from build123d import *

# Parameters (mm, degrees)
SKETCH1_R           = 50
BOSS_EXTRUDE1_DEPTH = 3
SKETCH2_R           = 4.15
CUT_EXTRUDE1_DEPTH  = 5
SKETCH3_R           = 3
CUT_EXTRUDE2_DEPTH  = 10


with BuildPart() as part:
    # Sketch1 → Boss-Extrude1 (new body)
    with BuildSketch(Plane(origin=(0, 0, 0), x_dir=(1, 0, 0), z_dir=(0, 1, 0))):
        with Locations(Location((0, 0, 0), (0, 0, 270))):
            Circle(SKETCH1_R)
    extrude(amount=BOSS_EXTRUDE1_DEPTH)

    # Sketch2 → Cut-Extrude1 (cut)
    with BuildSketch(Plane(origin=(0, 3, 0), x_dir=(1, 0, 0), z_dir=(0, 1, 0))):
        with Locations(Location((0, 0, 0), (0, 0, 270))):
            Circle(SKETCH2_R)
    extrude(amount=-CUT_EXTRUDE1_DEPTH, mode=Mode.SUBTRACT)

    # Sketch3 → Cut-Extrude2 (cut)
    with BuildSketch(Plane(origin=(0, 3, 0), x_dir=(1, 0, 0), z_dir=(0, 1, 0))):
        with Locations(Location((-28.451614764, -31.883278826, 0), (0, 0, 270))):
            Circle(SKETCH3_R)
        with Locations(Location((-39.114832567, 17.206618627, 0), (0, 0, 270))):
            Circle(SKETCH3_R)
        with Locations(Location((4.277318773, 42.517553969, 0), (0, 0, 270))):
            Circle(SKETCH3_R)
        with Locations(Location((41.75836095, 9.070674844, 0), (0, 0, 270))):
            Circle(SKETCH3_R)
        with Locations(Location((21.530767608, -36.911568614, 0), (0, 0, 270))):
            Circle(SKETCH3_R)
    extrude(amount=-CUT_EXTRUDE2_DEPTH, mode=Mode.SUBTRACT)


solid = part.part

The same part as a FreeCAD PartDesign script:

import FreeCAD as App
import Part
import Sketcher
from FreeCAD import Vector
Q = App.Units.Quantity

doc = App.newDocument("Part")
body = doc.addObject("PartDesign::Body", "Body")

# Sketch on XZ plane
sketch1 = doc.addObject("Sketcher::SketchObject", "Sketch")
body.addObject(sketch1)
sketch1.AttachmentSupport = (doc.XZ_Plane, [""])
sketch1.MapMode = "FlatFace"
sketch1.addGeometry(Part.Circle(Vector(0, 0, 0), Vector(0, 0, 1), 50), False)
sketch1.addConstraint([
    Sketcher.Constraint("Coincident", 0, 3, -1, 1),
    Sketcher.Constraint("Diameter", 0, Q("100 mm")),
])
pad1 = doc.addObject("PartDesign::Pad", "Pad")
body.addObject(pad1)
pad1.Profile = sketch1
pad1.Length = 3
pad1.Reversed = True

# Sketch on XZ plane
sketch2 = doc.addObject("Sketcher::SketchObject", "Sketch001")
body.addObject(sketch2)
sketch2.AttachmentSupport = (doc.XZ_Plane, [""])
sketch2.MapMode = "FlatFace"
sketch2.AttachmentOffset = App.Placement(Vector(0, 0, -3), App.Rotation())
sketch2.addGeometry(Part.Circle(Vector(0, 0, 0), Vector(0, 0, 1), 4.2), False)
sketch2.addConstraint([
    Sketcher.Constraint("Coincident", 0, 3, -1, 1),
    Sketcher.Constraint("Diameter", 0, Q("8.3 mm")),
])
pocket1 = doc.addObject("PartDesign::Pocket", "Pocket")
body.addObject(pocket1)
pocket1.Profile = sketch2
pocket1.Length = 5
pocket1.Reversed = True

# Sketch on XZ plane
sketch3 = doc.addObject("Sketcher::SketchObject", "Sketch002")
body.addObject(sketch3)
sketch3.AttachmentSupport = (doc.XZ_Plane, [""])
sketch3.MapMode = "FlatFace"
sketch3.AttachmentOffset = App.Placement(Vector(0, 0, -3), App.Rotation())
sketch3.addGeometry([
    Part.Circle(Vector(-28.5, 31.9, 0), Vector(0, 0, 1), 3),  # 0
    Part.Circle(Vector(-39.1, -17.2, 0), Vector(0, 0, 1), 3),  # 1
    Part.Circle(Vector(4.3, -42.5, 0), Vector(0, 0, 1), 3),  # 2
    Part.Circle(Vector(41.8, -9.1, 0), Vector(0, 0, 1), 3),  # 3
    Part.Circle(Vector(21.5, 36.9, 0), Vector(0, 0, 1), 3),  # 4
], False)
sketch3.addConstraint([
    Sketcher.Constraint("Equal", 0, 1),
    Sketcher.Constraint("Equal", 1, 2),
    Sketcher.Constraint("Equal", 2, 3),
    Sketcher.Constraint("Equal", 3, 4),
    Sketcher.Constraint("Diameter", 0, Q("6 mm")),
    Sketcher.Constraint("DistanceX", 1, 3, 4, 3, Q("60.6456 mm")),
    Sketcher.Constraint("DistanceY", -1, 1, 0, 3, Q("31.883279 mm")),
    Sketcher.Constraint("DistanceY", 1, 3, -1, 1, Q("17.206619 mm")),
    Sketcher.Constraint("DistanceX", -1, 1, 2, 3, Q("4.277319 mm")),
    Sketcher.Constraint("DistanceX", -1, 1, 3, 3, Q("41.758361 mm")),
    Sketcher.Constraint("DistanceY", -1, 1, 4, 3, Q("36.911569 mm")),
    Sketcher.Constraint("DistanceX", 1, 3, 2, 3, Q("43.392151 mm")),
    Sketcher.Constraint("DistanceY", 2, 3, 3, 3, Q("33.446879 mm")),
    Sketcher.Constraint("DistanceX", 0, 3, -1, 1, Q("28.451615 mm")),
    Sketcher.Constraint("DistanceY", 2, 3, -1, 1, Q("42.517554 mm")),
])
pocket2 = doc.addObject("PartDesign::Pocket", "Pocket001")
body.addObject(pocket2)
pocket2.Profile = sketch3
pocket2.Length = 10
pocket2.Reversed = True

doc.recompute()
